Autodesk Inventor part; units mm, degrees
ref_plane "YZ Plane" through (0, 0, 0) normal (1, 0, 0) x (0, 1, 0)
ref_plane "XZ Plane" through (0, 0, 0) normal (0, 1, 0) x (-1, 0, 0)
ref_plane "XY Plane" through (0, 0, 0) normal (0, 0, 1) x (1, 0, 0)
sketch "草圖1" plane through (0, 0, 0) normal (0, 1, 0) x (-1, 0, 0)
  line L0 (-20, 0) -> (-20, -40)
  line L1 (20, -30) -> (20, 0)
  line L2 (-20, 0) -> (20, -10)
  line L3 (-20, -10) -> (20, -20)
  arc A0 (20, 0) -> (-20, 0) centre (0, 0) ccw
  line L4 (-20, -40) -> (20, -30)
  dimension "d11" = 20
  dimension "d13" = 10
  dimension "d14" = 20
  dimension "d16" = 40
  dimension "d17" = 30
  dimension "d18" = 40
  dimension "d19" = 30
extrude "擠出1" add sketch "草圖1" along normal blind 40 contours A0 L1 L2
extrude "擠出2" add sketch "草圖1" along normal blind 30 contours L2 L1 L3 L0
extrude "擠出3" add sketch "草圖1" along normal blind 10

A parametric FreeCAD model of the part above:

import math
import FreeCAD as App
import Part
import Sketcher

doc = App.newDocument("Part")
body = doc.addObject("PartDesign::Body", "Body")

# Sketch on XZ plane
sketch1 = body.newObject("Sketcher::SketchObject", "Sketch")
sketch1.AttachmentSupport = (doc.getObject("XZ_Plane"), [""])
sketch1.MapMode = "FlatFace"
sketch1.addGeometry(Part.ArcOfCircle(Part.Circle(App.Vector(0, 0, 0), App.Vector(0, 0, 1), 20), math.radians(0), math.radians(180)), False)
sketch1.addGeometry(Part.LineSegment(App.Vector(20, 0, 0), App.Vector(-20, -10, 0)), False)
sketch1.addGeometry(Part.LineSegment(App.Vector(-20, -10, 0), App.Vector(-20, 0, 0)), False)
sketch1.addConstraint(Sketcher.Constraint("Coincident", 0, 1, 1, 1))
sketch1.addConstraint(Sketcher.Constraint("Coincident", 1, 2, 2, 1))
sketch1.addConstraint(Sketcher.Constraint("Tangent", 2, 2, 0, 2))
sketch1.addConstraint(Sketcher.Constraint("Vertical", 2))
sketch1.addConstraint(Sketcher.Constraint("Coincident", 0, 3, -1, 1))
sketch1.addConstraint(Sketcher.Constraint("PointOnObject", 0, 1, -1))
sketch1.addConstraint(Sketcher.Constraint("Radius", 0, 20.0))
sketch1.addConstraint(Sketcher.Constraint("DistanceY", 2, 1, 2, 2, 10.0))
pad1 = body.newObject("PartDesign::Pad", "Pad")
pad1.Profile = sketch1
pad1.Length = 40
pad1.Reversed = True

# Sketch on XZ plane
sketch2 = body.newObject("Sketcher::SketchObject", "Sketch001")
sketch2.AttachmentSupport = (doc.getObject("XZ_Plane"), [""])
sketch2.MapMode = "FlatFace"
sketch2.addGeometry(Part.LineSegment(App.Vector(-20, -10, 0), App.Vector(20, 0, 0)), False)
sketch2.addGeometry(Part.LineSegment(App.Vector(20, 0, 0), App.Vector(20, -10, 0)), False)
sketch2.addGeometry(Part.LineSegment(App.Vector(20, -10, 0), App.Vector(-20, -20, 0)), False)
sketch2.addGeometry(Part.LineSegment(App.Vector(-20, -20, 0), App.Vector(-20, -10, 0)), False)
sketch2.addConstraint(Sketcher.Constraint("Coincident", 0, 2, 1, 1))
sketch2.addConstraint(Sketcher.Constraint("Coincident", 1, 2, 2, 1))
sketch2.addConstraint(Sketcher.Constraint("Coincident", 2, 2, 3, 1))
sketch2.addConstraint(Sketcher.Constraint("Coincident", 3, 2, 0, 1))
sketch2.addConstraint(Sketcher.Constraint("Vertical", 1))
sketch2.addConstraint(Sketcher.Constraint("Vertical", 3))
sketch2.addConstraint(Sketcher.Constraint("Symmetric", 1, 2, 3, 2, -2))
sketch2.addConstraint(Sketcher.Constraint("PointOnObject", 0, 2, -1))
sketch2.addConstraint(Sketcher.Constraint("Parallel", 0, 2))
sketch2.addConstraint(Sketcher.Constraint("DistanceY", 1, 2, 1, 1, 10.0))
sketch2.addConstraint(Sketcher.Constraint("DistanceX", -1, 1, 0, 2, 20.0))
pad2 = body.newObject("PartDesign::Pad", "Pad001")
pad2.Profile = sketch2
pad2.Length = 30
pad2.Reversed = True

# Sketch on XZ plane
sketch3 = body.newObject("Sketcher::SketchObject", "Sketch002")
sketch3.AttachmentSupport = (doc.getObject("XZ_Plane"), [""])
sketch3.MapMode = "FlatFace"
sketch3.addGeometry(Part.ArcOfCircle(Part.Circle(App.Vector(0, 0, 0), App.Vector(0, 0, 1), 20), math.radians(0), math.radians(180)), False)
sketch3.addGeometry(Part.LineSegment(App.Vector(20, 0, 0), App.Vector(20, -40, 0)), False)
sketch3.addGeometry(Part.LineSegment(App.Vector(20, -40, 0), App.Vector(-20, -30, 0)), False)
sketch3.addGeometry(Part.LineSegment(App.Vector(-20, -30, 0), App.Vector(-20, 0, 0)), False)
sketch3.addConstraint(Sketcher.Constraint("Tangent", 0, 1, 1, 1))
sketch3.addConstraint(Sketcher.Constraint("Coincident", 1, 2, 2, 1))
sketch3.addConstraint(Sketcher.Constraint("Coincident", 2, 2, 3, 1))
sketch3.addConstraint(Sketcher.Constraint("Tangent", 3, 2, 0, 2))
sketch3.addConstraint(Sketcher.Constraint("Vertical", 1))
sketch3.addConstraint(Sketcher.Constraint("Vertical", 3))
sketch3.addConstraint(Sketcher.Constraint("Coincident", 0, 3, -1, 1))
sketch3.addConstraint(Sketcher.Constraint("Radius", 0, 20.0))
sketch3.addConstraint(Sketcher.Constraint("DistanceY", 1, 2, 1, 1, 40.0))
sketch3.addConstraint(Sketcher.Constraint("DistanceY", 3, 1, 3, 2, 30.0))
pad3 = body.newObject("PartDesign::Pad", "Pad002")
pad3.Profile = sketch3
pad3.Length = 10
pad3.Reversed = True

doc.recompute()
